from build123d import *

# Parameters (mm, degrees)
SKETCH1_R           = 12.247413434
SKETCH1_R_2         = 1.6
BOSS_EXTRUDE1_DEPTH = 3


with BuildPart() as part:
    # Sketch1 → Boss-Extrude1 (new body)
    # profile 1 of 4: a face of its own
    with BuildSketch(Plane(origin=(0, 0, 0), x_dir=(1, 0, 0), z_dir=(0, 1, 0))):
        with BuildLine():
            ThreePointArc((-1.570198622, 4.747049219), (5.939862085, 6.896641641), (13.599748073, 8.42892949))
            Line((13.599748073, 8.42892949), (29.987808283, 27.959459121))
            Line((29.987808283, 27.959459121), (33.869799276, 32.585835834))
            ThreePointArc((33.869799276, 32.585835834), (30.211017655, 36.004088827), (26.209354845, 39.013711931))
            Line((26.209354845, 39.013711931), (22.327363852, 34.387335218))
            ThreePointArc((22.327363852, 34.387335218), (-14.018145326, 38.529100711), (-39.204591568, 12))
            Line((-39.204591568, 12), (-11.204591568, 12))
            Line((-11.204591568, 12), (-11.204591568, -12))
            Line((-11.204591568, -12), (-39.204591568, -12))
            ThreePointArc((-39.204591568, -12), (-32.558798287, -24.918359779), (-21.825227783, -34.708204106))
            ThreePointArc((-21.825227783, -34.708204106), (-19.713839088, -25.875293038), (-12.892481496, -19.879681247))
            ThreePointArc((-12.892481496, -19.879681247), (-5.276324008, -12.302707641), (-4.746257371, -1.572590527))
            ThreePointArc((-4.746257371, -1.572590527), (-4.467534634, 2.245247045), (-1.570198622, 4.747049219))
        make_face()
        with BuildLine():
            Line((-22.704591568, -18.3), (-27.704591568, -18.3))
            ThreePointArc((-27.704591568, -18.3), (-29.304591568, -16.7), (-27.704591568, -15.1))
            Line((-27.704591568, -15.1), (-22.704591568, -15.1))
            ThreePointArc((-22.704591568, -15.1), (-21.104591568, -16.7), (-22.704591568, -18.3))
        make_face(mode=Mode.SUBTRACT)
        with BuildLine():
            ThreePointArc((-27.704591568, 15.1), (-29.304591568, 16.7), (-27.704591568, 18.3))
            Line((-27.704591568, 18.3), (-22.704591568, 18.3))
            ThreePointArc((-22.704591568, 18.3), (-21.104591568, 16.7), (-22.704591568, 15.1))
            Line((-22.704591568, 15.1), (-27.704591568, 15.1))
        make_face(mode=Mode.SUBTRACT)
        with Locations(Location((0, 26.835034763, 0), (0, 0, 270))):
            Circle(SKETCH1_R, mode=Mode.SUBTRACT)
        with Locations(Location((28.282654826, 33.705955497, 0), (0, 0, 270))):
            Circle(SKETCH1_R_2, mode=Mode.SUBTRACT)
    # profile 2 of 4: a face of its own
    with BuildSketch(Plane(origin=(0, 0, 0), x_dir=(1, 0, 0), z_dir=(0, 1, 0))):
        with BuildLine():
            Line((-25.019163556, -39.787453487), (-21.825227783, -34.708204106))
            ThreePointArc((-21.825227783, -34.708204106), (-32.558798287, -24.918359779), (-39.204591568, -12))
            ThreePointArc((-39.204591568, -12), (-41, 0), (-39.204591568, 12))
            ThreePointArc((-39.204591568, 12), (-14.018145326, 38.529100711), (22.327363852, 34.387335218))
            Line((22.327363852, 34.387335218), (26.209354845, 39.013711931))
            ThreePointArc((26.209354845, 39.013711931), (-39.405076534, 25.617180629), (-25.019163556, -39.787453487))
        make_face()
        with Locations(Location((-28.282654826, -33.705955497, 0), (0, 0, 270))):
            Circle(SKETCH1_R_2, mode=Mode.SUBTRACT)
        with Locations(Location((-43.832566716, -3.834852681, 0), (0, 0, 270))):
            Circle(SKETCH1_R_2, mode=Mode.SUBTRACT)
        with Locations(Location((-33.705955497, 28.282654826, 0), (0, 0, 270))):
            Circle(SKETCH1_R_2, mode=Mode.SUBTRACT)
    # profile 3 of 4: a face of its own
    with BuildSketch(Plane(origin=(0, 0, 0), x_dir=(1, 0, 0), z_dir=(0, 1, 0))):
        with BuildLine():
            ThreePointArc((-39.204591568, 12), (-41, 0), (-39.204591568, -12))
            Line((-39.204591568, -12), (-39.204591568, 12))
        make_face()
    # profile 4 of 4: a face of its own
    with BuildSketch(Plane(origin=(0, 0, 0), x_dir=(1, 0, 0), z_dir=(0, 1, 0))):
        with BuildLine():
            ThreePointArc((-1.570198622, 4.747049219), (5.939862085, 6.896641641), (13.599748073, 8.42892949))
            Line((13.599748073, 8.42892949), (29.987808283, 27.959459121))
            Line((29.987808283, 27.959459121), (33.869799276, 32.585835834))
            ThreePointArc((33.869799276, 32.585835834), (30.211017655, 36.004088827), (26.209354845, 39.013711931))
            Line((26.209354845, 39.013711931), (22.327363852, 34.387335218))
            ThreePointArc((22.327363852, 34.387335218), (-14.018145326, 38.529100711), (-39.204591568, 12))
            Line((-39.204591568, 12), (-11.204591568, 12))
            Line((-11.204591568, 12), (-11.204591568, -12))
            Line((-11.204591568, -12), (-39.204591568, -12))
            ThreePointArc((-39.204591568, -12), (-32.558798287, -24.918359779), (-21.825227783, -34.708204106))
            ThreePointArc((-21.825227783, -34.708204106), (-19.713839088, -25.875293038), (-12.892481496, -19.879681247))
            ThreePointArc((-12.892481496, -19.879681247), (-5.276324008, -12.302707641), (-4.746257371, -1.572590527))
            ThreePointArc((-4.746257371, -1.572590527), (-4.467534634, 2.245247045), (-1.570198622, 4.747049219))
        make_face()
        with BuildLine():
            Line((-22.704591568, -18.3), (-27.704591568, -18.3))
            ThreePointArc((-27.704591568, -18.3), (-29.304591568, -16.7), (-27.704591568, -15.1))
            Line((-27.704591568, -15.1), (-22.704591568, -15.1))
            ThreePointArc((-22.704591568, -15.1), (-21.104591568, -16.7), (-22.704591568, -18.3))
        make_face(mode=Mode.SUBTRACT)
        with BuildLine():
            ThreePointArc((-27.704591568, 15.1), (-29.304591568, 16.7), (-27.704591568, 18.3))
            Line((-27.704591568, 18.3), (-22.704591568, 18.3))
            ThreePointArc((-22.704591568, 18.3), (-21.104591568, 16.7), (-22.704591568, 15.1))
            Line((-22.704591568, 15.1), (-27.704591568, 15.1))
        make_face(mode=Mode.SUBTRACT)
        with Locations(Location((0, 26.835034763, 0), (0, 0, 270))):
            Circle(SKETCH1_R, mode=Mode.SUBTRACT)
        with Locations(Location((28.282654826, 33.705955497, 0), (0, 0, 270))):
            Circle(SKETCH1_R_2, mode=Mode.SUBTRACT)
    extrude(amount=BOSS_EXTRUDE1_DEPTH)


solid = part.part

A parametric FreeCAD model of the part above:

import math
import FreeCAD as App
import Part
import Sketcher

V = App.Vector
Q = App.Units.Quantity


def add_polygon(sketch, points):
    """Adds a closed chain of lines whose ends are joined by coincident constraints."""
    first, n = sketch.GeometryCount, len(points)
    for a, b in zip(points, points[1:] + points[:1]):
        sketch.addGeometry(Part.LineSegment(App.Vector(*a, 0), App.Vector(*b, 0)), False)
    for i in range(n):
        sketch.addConstraint(Sketcher.Constraint("Coincident", first + i, 2, first + (i + 1) % n, 1))

doc = App.newDocument("Part")
params = doc.addObject("Spreadsheet::Sheet", "Params")
for row, (alias, value) in enumerate([
    ("sketch1_radius", "47 mm"),
    ("sketch1_radius2", "15 mm"),
    ("sketch1_radius3", "5 mm"),
    ("sketch1_diameter", "3.2 mm"),
    ("sketch1_width", "28 mm"),
    ("pad1_length", "3 mm"),
], start=1):
    params.set(f"A{row}", alias)
    params.set(f"B{row}", "=" + value)
    params.setAlias(f"B{row}", alias)

body = doc.addObject("PartDesign::Body", "Body")

# Sketch on XZ plane
sketch1 = body.newObject("Sketcher::SketchObject", "Sketch")
sketch1.AttachmentSupport = (doc.getObject("XZ_Plane"), [""])
sketch1.MapMode = "FlatFace"
sketch1.addGeometry(Part.ArcOfCircle(Part.Circle(V(28.6, 86.5, 0), V(0, 0, 1), 96.1), math.radians(-108.3), math.radians(-98.98)), False)  # 0
sketch1.addGeometry(Part.LineSegment(V(13.6, -8.4, 0), V(30, -28, 0)), False)  # 1
sketch1.addGeometry(Part.LineSegment(V(30, -28, 0), V(33.9, -32.6, 0)), False)  # 2
sketch1.addGeometry(Part.ArcOfCircle(Part.Circle(V(0, 0, 0), V(0, 0, 1), 47), math.radians(-56.11), math.radians(-43.89)), False)  # 3
sketch1.addGeometry(Part.ArcOfCircle(Part.Circle(V(0, 0, 0), V(0, 0, 1), 47), math.radians(122), math.radians(304)), False)  # 4
sketch1.addGeometry(Part.LineSegment(V(-25, 39.8, 0), V(-21.8, 34.7, 0)), False)  # 5
sketch1.addGeometry(Part.ArcOfCircle(Part.Circle(V(-6.9, 33.6, 0), V(0, 0, 1), 15), math.radians(176), math.radians(246)), False)  # 6
sketch1.addGeometry(Part.ArcOfCircle(Part.Circle(V(-18.9, 6.3, 0), V(0, 0, 1), 14.9), math.radians(-18), math.radians(66)), False)  # 7
sketch1.addGeometry(Part.ArcOfCircle(Part.Circle(V(0, 0, 0), V(0, 0, 1), 5), math.radians(162), math.radians(252)), False)  # 8
add_polygon(sketch1, [(-11.2, 12), (-39.2, 12), (-39.2, -12), (-11.2, -12)])  # lines 9-12
sketch1.addGeometry(Part.ArcOfCircle(Part.Circle(V(-22.7, 16.7, 0), V(0, 0, 1), 1.6), math.radians(-90), math.radians(90)), False)  # 13
sketch1.addGeometry(Part.LineSegment(V(-22.7, 18.3, 0), V(-27.7, 18.3, 0)), False)  # 14
sketch1.addGeometry(Part.ArcOfCircle(Part.Circle(V(-27.7, 16.7, 0), V(0, 0, 1), 1.6), math.radians(90), math.radians(270)), False)  # 15
sketch1.addGeometry(Part.LineSegment(V(-27.7, 15.1, 0), V(-22.7, 15.1, 0)), False)  # 16
sketch1.addGeometry(Part.LineSegment(V(-22.7, -15.1, 0), V(-27.7, -15.1, 0)), False)  # 17
sketch1.addGeometry(Part.ArcOfCircle(Part.Circle(V(-27.7, -16.7, 0), V(0, 0, 1), 1.6), math.radians(90), math.radians(270)), False)  # 18
sketch1.addGeometry(Part.LineSegment(V(-27.7, -18.3, 0), V(-22.7, -18.3, 0)), False)  # 19
sketch1.addGeometry(Part.ArcOfCircle(Part.Circle(V(-22.7, -16.7, 0), V(0, 0, 1), 1.6), math.radians(-90), math.radians(90)), False)  # 20
sketch1.addGeometry(Part.Circle(V(0, -26.8, 0), V(0, 0, 1), 12.2), False)  # 21
sketch1.addGeometry(Part.Circle(V(28.3, -33.7, 0), V(0, 0, 1), 1.6), False)  # 22
sketch1.addGeometry(Part.Circle(V(-33.7, -28.3, 0), V(0, 0, 1), 1.6), False)  # 23
sketch1.addGeometry(Part.Circle(V(-28.3, 33.7, 0), V(0, 0, 1), 1.6), False)  # 24
sketch1.addGeometry(Part.Circle(V(-43.8, 3.8, 0), V(0, 0, 1), 1.6), False)  # 25
sketch1.addConstraint([
    Sketcher.Constraint("Coincident", 0, 2, 1, 1),
    Sketcher.Constraint("Coincident", 1, 2, 2, 1),
    Sketcher.Constraint("Coincident", 2, 2, 3, 2),
    Sketcher.Constraint("Tangent", 3, 1, 4, 2),
    Sketcher.Constraint("Coincident", 4, 1, 5, 1),
    Sketcher.Constraint("Coincident", 5, 2, 6, 1),
    Sketcher.Constraint("Tangent", 6, 2, 7, 2),
    Sketcher.Constraint("Tangent", 7, 1, 8, 1),
    Sketcher.Constraint("Tangent", 8, 2, 0, 1),
    Sketcher.Constraint("Tangent", 13, 2, 14, 1),
    Sketcher.Constraint("Tangent", 14, 2, 15, 1),
    Sketcher.Constraint("Tangent", 15, 2, 16, 1),
    Sketcher.Constraint("Tangent", 16, 2, 13, 1),
    Sketcher.Constraint("Tangent", 17, 2, 18, 1),
    Sketcher.Constraint("Tangent", 18, 2, 19, 1),
    Sketcher.Constraint("Tangent", 19, 2, 20, 1),
    Sketcher.Constraint("Tangent", 20, 2, 17, 1),
    Sketcher.Constraint("Horizontal", 9),
    Sketcher.Constraint("Vertical", 10),
    Sketcher.Constraint("Horizontal", 11),
    Sketcher.Constraint("Vertical", 12),
    Sketcher.Constraint("Horizontal", 14),
    Sketcher.Constraint("Horizontal", 16),
    Sketcher.Constraint("Horizontal", 17),
    Sketcher.Constraint("Horizontal", 19),
    Sketcher.Constraint("Coincident", 3, 3, -1, 1),
    Sketcher.Constraint("Coincident", 8, 3, -1, 1),
    Sketcher.Constraint("Equal", 3, 4),
    Sketcher.Constraint("Equal", 15, 18),
    Sketcher.Constraint("Equal", 20, 22),
    Sketcher.Constraint("Equal", 22, 23),
    Sketcher.Constraint("Equal", 23, 24),
    Sketcher.Constraint("Equal", 24, 25),
    Sketcher.Constraint("Symmetric", 22, 3, 24, 3, -1, 1),
    Sketcher.Constraint("Symmetric", 15, 3, 18, 3, -1),
    Sketcher.Constraint("PointOnObject", 21, 3, -2),
    Sketcher.Constraint("Parallel", 1, 2),
    Sketcher.Constraint("Vertical", 13, 3, 20, 3),
    Sketcher.Constraint("Radius", 3, Q("47 mm")),
    Sketcher.Constraint("Radius", 6, Q("15 mm")),
    Sketcher.Constraint("Radius", 8, Q("5 mm")),
    Sketcher.Constraint("Diameter", 22, Q("3.2 mm")),
    Sketcher.Constraint("DistanceX", 9, 2, 9, 1, Q("28 mm")),
    Sketcher.Constraint("DistanceX", 14, 2, 14, 1, Q("5 mm")),
    Sketcher.Constraint("DistanceY", 10, 2, 10, 1, Q("24 mm")),
    Sketcher.Constraint("Angle", 1, Q("-50 deg")),
    Sketcher.Constraint("Distance", 5, Q("6 mm")),
    Sketcher.Constraint("DistanceY", -1, 1, 9, 2, Q("12 mm")),
    Sketcher.Constraint("DistanceY", -1, 1, 13, 3, Q("16.7 mm")),
    Sketcher.Constraint("DistanceX", 9, 2, 15, 3, Q("11.5 mm")),
    Sketcher.Constraint("Diameter", 21, Q("24.494827 mm")),
    Sketcher.Constraint("Radius", 0, Q("96.063012 mm")),
    Sketcher.Constraint("Radius", 7, Q("14.880983 mm")),
    Sketcher.Constraint("DistanceX", -1, 1, 2, 2, Q("33.869799 mm")),
    Sketcher.Constraint("DistanceX", 8, 2, -1, 1, Q("1.570199 mm")),
    Sketcher.Constraint("DistanceY", 6, 3, 0, 3, Q("52.840701 mm")),
    Sketcher.Constraint("DistanceY", 2, 2, 21, 3, Q("5.750801 mm")),
    Sketcher.Constraint("DistanceX", 3, 1, 22, 3, Q("2.0733 mm")),
    Sketcher.Constraint("DistanceX", 7, 3, -1, 1, Q("18.872052 mm")),
    Sketcher.Constraint("DistanceX", 13, 3, -1, 1, Q("22.704592 mm")),
    Sketcher.Constraint("DistanceX", -1, 1, 1, 2, Q("29.987808 mm")),
    Sketcher.Constraint("DistanceY", 3, 1, -1, 1, Q("39.013712 mm")),
    Sketcher.Constraint("DistanceY", 22, 3, 21, 3, Q("6.870921 mm")),
    Sketcher.Constraint("DistanceY", 23, 3, 21, 3, Q("1.44762 mm")),
    Sketcher.Constraint("DistanceX", 24, 3, 4, 1, Q("3.263491 mm")),
    Sketcher.Constraint("DistanceX", 23, 3, -1, 1, Q("33.705955 mm")),
    Sketcher.Constraint("DistanceX", 25, 3, -1, 1, Q("43.832567 mm")),
    Sketcher.Constraint("DistanceY", -1, 1, 25, 3, Q("3.834853 mm")),
])
sketch1.setExpression("Constraints[42]", "Params.sketch1_radius")
sketch1.setExpression("Constraints[43]", "Params.sketch1_radius2")
sketch1.setExpression("Constraints[44]", "Params.sketch1_radius3")
sketch1.setExpression("Constraints[45]", "Params.sketch1_diameter")
sketch1.setExpression("Constraints[46]", "Params.sketch1_width")
pad1 = body.newObject("PartDesign::Pad", "Pad")
pad1.Profile = sketch1
pad1.setExpression("Length", "Params.pad1_length")
pad1.Reversed = True

doc.recompute()
